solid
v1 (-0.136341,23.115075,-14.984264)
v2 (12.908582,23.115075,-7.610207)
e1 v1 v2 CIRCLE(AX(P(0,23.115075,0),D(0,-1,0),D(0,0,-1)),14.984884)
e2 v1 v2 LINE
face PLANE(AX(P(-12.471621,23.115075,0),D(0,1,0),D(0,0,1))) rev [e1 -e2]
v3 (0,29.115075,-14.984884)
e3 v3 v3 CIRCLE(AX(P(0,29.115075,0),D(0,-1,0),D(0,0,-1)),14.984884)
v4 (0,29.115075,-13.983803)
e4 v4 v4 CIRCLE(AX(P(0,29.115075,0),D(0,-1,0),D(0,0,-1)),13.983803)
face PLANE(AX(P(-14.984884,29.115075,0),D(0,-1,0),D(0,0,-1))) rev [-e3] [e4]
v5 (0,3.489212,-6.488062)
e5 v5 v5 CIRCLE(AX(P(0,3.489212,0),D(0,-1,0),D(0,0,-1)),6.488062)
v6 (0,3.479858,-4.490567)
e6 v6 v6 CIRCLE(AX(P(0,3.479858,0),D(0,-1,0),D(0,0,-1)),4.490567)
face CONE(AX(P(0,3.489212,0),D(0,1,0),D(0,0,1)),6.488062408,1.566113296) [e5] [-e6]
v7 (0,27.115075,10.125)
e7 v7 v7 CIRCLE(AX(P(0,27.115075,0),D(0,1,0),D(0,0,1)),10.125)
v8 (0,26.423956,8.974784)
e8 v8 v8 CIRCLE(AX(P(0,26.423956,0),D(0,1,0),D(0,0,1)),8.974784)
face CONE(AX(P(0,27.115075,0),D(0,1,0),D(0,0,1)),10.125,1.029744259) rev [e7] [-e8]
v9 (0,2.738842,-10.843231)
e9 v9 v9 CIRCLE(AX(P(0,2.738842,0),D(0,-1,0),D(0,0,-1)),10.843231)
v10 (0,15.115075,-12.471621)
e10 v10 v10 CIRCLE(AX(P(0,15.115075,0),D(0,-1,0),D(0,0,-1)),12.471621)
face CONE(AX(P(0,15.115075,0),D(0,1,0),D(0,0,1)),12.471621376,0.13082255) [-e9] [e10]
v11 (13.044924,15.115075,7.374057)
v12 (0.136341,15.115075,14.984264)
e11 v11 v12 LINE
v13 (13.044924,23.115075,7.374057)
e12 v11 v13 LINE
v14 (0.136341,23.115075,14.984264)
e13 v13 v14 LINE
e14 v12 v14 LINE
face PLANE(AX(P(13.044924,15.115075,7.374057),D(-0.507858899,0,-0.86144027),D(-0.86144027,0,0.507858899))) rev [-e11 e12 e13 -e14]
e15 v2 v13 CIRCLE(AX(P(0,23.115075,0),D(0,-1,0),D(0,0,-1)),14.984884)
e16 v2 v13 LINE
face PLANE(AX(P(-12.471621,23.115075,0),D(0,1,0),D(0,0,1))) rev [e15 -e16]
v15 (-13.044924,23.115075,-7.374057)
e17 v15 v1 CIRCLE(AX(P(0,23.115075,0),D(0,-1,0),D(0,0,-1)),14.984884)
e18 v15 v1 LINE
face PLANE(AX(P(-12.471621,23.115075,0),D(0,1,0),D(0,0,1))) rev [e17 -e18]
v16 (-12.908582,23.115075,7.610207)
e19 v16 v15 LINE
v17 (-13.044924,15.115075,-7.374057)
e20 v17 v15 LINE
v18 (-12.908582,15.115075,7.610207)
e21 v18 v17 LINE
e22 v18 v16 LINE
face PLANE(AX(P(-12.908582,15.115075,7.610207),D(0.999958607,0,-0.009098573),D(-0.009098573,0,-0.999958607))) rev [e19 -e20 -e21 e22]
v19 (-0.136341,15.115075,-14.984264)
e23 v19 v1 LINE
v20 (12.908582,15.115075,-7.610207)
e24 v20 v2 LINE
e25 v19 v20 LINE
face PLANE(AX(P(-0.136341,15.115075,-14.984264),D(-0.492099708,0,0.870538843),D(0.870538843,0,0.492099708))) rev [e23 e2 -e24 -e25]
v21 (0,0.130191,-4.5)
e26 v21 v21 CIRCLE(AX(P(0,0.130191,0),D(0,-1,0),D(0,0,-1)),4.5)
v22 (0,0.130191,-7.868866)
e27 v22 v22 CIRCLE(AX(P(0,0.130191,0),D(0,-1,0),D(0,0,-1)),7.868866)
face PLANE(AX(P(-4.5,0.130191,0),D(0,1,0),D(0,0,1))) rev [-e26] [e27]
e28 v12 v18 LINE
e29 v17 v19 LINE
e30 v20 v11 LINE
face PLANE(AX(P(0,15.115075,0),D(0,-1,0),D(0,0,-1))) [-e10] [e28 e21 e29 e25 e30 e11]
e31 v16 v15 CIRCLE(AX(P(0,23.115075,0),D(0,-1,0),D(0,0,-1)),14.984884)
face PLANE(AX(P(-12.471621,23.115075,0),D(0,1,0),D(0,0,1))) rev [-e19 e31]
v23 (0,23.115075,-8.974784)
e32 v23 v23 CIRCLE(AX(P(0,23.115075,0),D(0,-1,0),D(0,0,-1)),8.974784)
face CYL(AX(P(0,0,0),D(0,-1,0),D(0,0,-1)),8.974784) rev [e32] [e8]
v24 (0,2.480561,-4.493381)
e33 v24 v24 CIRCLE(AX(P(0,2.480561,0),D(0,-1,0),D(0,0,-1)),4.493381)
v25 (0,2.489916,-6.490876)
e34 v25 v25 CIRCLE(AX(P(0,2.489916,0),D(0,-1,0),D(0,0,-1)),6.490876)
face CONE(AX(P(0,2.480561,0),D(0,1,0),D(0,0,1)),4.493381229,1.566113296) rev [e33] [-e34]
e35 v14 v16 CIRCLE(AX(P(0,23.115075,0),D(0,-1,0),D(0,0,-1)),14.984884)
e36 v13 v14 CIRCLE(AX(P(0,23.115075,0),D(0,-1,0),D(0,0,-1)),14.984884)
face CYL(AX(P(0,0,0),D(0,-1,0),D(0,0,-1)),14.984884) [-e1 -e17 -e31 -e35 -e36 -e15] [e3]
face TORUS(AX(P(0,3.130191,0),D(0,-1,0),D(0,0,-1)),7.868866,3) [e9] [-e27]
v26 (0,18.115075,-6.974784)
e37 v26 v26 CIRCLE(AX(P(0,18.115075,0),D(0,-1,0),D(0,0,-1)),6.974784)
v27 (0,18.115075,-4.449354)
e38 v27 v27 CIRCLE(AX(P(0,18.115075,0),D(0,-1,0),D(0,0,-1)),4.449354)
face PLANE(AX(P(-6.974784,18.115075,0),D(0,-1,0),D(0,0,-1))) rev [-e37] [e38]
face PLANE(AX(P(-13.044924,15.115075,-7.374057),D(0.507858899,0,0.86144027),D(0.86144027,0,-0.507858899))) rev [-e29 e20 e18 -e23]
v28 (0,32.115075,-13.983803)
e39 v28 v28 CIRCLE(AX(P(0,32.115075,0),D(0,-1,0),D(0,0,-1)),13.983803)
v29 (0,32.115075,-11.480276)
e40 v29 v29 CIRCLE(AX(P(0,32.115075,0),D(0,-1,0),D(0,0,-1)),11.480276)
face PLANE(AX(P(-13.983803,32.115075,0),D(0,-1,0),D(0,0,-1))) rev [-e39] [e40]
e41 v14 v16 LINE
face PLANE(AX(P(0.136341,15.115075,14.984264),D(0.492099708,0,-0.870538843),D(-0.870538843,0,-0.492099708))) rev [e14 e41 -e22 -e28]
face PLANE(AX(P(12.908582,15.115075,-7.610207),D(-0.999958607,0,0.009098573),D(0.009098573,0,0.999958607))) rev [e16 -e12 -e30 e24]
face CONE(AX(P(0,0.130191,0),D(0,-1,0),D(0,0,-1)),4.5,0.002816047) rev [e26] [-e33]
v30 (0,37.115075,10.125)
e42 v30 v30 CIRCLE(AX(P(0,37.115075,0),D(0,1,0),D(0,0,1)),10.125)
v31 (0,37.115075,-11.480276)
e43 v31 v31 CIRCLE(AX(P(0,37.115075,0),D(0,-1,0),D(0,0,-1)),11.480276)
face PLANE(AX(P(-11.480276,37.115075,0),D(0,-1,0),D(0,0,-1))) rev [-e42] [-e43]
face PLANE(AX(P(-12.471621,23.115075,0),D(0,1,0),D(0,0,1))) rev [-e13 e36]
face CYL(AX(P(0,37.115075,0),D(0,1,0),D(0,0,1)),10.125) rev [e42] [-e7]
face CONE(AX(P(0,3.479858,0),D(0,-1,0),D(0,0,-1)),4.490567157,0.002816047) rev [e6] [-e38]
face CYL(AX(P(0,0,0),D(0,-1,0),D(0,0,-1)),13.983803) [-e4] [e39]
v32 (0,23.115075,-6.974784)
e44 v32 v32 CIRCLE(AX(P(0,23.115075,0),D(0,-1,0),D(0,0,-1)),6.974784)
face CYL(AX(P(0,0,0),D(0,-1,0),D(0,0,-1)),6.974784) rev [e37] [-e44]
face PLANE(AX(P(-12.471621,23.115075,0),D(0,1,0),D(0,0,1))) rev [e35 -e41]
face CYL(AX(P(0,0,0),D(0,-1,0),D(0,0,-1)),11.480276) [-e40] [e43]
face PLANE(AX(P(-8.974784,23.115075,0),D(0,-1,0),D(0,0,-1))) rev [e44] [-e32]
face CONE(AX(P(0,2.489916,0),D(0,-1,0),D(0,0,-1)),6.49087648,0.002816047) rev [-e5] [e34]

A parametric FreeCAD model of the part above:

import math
import FreeCAD as App
import Part
import Sketcher
from FreeCAD import Vector

doc = App.newDocument("Part")
body = doc.addObject("PartDesign::Body", "Body")

sketch1 = body.newObject("Sketcher::SketchObject", "Sketch")
sketch1.AttachmentSupport = (doc.getObject("XY_Plane"), [""])
sketch1.MapMode = "FlatFace"
sketch1.addGeometry(Part.LineSegment(Vector(-7.9, 0.1, 0), Vector(-4.5, 0.1, 0)), False)
sketch1.addGeometry(Part.LineSegment(Vector(-4.5, 0.1, 0), Vector(-4.5, 2.5, 0)), False)
sketch1.addGeometry(Part.LineSegment(Vector(-4.5, 2.5, 0), Vector(-6.5, 2.5, 0)), False)
sketch1.addGeometry(Part.LineSegment(Vector(-6.5, 2.5, 0), Vector(-6.5, 3.5, 0)), False)
sketch1.addGeometry(Part.LineSegment(Vector(-6.5, 3.5, 0), Vector(-4.5, 3.5, 0)), False)
sketch1.addGeometry(Part.LineSegment(Vector(-4.5, 3.5, 0), Vector(-4.4, 18.1, 0)), False)
sketch1.addGeometry(Part.LineSegment(Vector(-4.4, 18.1, 0), Vector(-7, 18.1, 0)), False)
sketch1.addGeometry(Part.LineSegment(Vector(-7, 18.1, 0), Vector(-7, 23.1, 0)), False)
sketch1.addGeometry(Part.LineSegment(Vector(-7, 23.1, 0), Vector(-9, 23.1, 0)), False)
sketch1.addGeometry(Part.LineSegment(Vector(-9, 23.1, 0), Vector(-9, 37.1, 0)), False)
sketch1.addGeometry(Part.LineSegment(Vector(-9, 37.1, 0), Vector(-11.5, 37.1, 0)), False)
sketch1.addGeometry(Part.LineSegment(Vector(-11.5, 37.1, 0), Vector(-11.5, 32.1, 0)), False)
sketch1.addGeometry(Part.LineSegment(Vector(-11.5, 32.1, 0), Vector(-14, 32.1, 0)), False)
sketch1.addGeometry(Part.LineSegment(Vector(-14, 32.1, 0), Vector(-14, 29.1, 0)), False)
sketch1.addGeometry(Part.LineSegment(Vector(-14, 29.1, 0), Vector(-15, 29.1, 0)), False)
sketch1.addGeometry(Part.LineSegment(Vector(-15, 29.1, 0), Vector(-15, 23.1, 0)), False)
sketch1.addGeometry(Part.LineSegment(Vector(-15, 23.1, 0), Vector(-12.5, 23.1, 0)), False)
sketch1.addGeometry(Part.LineSegment(Vector(-12.5, 23.1, 0), Vector(-12.5, 15.1, 0)), False)
sketch1.addGeometry(Part.LineSegment(Vector(-12.5, 15.1, 0), Vector(-10.8, 2.7, 0)), False)
sketch1.addGeometry(Part.ArcOfCircle(Part.Circle(Vector(-7.9, 3.1, 0), Vector(0, 0, 1), 3), math.radians(-173), math.radians(-90)), False)
sketch1.addConstraint(Sketcher.Constraint("Coincident", 0, 2, 1, 1))
sketch1.addConstraint(Sketcher.Constraint("Coincident", 1, 2, 2, 1))
sketch1.addConstraint(Sketcher.Constraint("Coincident", 2, 2, 3, 1))
sketch1.addConstraint(Sketcher.Constraint("Coincident", 3, 2, 4, 1))
sketch1.addConstraint(Sketcher.Constraint("Coincident", 4, 2, 5, 1))
sketch1.addConstraint(Sketcher.Constraint("Coincident", 5, 2, 6, 1))
sketch1.addConstraint(Sketcher.Constraint("Coincident", 6, 2, 7, 1))
sketch1.addConstraint(Sketcher.Constraint("Coincident", 7, 2, 8, 1))
sketch1.addConstraint(Sketcher.Constraint("Coincident", 8, 2, 9, 1))
sketch1.addConstraint(Sketcher.Constraint("Coincident", 9, 2, 10, 1))
sketch1.addConstraint(Sketcher.Constraint("Coincident", 10, 2, 11, 1))
sketch1.addConstraint(Sketcher.Constraint("Coincident", 11, 2, 12, 1))
sketch1.addConstraint(Sketcher.Constraint("Coincident", 12, 2, 13, 1))
sketch1.addConstraint(Sketcher.Constraint("Coincident", 13, 2, 14, 1))
sketch1.addConstraint(Sketcher.Constraint("Coincident", 14, 2, 15, 1))
sketch1.addConstraint(Sketcher.Constraint("Coincident", 15, 2, 16, 1))
sketch1.addConstraint(Sketcher.Constraint("Coincident", 16, 2, 17, 1))
sketch1.addConstraint(Sketcher.Constraint("Coincident", 17, 2, 18, 1))
sketch1.addConstraint(Sketcher.Constraint("Tangent", 18, 2, 19, 1))
sketch1.addConstraint(Sketcher.Constraint("Tangent", 19, 2, 0, 1))
sketch1.addConstraint(Sketcher.Constraint("Horizontal", 0))
sketch1.addConstraint(Sketcher.Constraint("Horizontal", 6))
sketch1.addConstraint(Sketcher.Constraint("Vertical", 7))
sketch1.addConstraint(Sketcher.Constraint("Horizontal", 8))
sketch1.addConstraint(Sketcher.Constraint("Vertical", 9))
sketch1.addConstraint(Sketcher.Constraint("Horizontal", 10))
sketch1.addConstraint(Sketcher.Constraint("Vertical", 11))
sketch1.addConstraint(Sketcher.Constraint("Horizontal", 12))
sketch1.addConstraint(Sketcher.Constraint("Vertical", 13))
sketch1.addConstraint(Sketcher.Constraint("Horizontal", 14))
sketch1.addConstraint(Sketcher.Constraint("Vertical", 15))
sketch1.addConstraint(Sketcher.Constraint("Horizontal", 16))
sketch1.addConstraint(Sketcher.Constraint("Vertical", 17))
sketch1.addConstraint(Sketcher.Constraint("Parallel", 1, 3))
sketch1.addConstraint(Sketcher.Constraint("Parallel", 2, 4))
sketch1.addConstraint(Sketcher.Constraint("Parallel", 3, 5))
sketch1.addConstraint(Sketcher.Constraint("Horizontal", 8, 2, 15, 2))
sketch1.addConstraint(Sketcher.Constraint("Equal", 7, 11))
sketch1.addConstraint(Sketcher.Constraint("Equal", 2, 4))
sketch1.addConstraint(Sketcher.Constraint("Radius", 19, 3.0))
sketch1.addConstraint(Sketcher.Constraint("DistanceX", 8, 2, 8, 1, 2.0))
sketch1.addConstraint(Sketcher.Constraint("DistanceY", 7, 1, 7, 2, 5.0))
sketch1.addConstraint(Sketcher.Constraint("DistanceY", 9, 1, 9, 2, 14.0))
sketch1.addConstraint(Sketcher.Constraint("DistanceY", 13, 2, 13, 1, 3.0))
sketch1.addConstraint(Sketcher.Constraint("DistanceY", 17, 2, 17, 1, 8.0))
sketch1.addConstraint(Sketcher.Constraint("DistanceX", 0, 2, -1, 1, 4.5))
sketch1.addConstraint(Sketcher.Constraint("Distance", 3, 0.9993))
sketch1.addConstraint(Sketcher.Constraint("Distance", 18, 12.4829))
sketch1.addConstraint(Sketcher.Constraint("DistanceX", 6, 2, 6, 1, 2.52543))
sketch1.addConstraint(Sketcher.Constraint("DistanceX", 14, 2, 14, 1, 1.001081))
sketch1.addConstraint(Sketcher.Constraint("DistanceX", 19, 3, 4, 2, 3.378299))
sketch1.addConstraint(Sketcher.Constraint("DistanceX", 14, 2, 8, 2, 6.0101))
sketch1.addConstraint(Sketcher.Constraint("Distance", 1, 2.35038))
sketch1.addConstraint(Sketcher.Constraint("DistanceX", 0, 1, 0, 2, 3.368866))
sketch1.addConstraint(Sketcher.Constraint("DistanceX", 10, 2, 10, 1, 2.505492))
sketch1.addConstraint(Sketcher.Constraint("DistanceX", 16, 1, 16, 2, 2.513263))
sketch1.addConstraint(Sketcher.Constraint("DistanceY", -1, 1, 19, 3, 3.130191))
sketch1.addConstraint(Sketcher.Constraint("DistanceY", -1, 1, 3, 2, 3.489212))
sketch1.addConstraint(Sketcher.Constraint("DistanceX", 19, 3, 2, 2, 1.377989))
revolution = body.newObject("PartDesign::Revolution", "Revolution")
revolution.Profile = sketch1
revolution.ReferenceAxis = (sketch1, ["V_Axis"])
revolution.Angle = 360

sketch2 = body.newObject("Sketcher::SketchObject", "Sketch001")
sketch2.AttachmentSupport = (doc.getObject("XZ_Plane"), [""])
sketch2.MapMode = "FlatFace"
sketch2.AttachmentOffset = App.Placement(Vector(0, 0, -23.115075), App.Rotation())
sketch2.addGeometry(Part.LineSegment(Vector(13, 7, 0), Vector(0, 15, 0)), False)
sketch2.addGeometry(Part.LineSegment(Vector(0, 15, 0), Vector(-13, 8, 0)), False)
sketch2.addGeometry(Part.LineSegment(Vector(-13, 8, 0), Vector(-13, -7, 0)), False)
sketch2.addGeometry(Part.LineSegment(Vector(-13, -7, 0), Vector(0, -15, 0)), False)
sketch2.addGeometry(Part.LineSegment(Vector(0, -15, 0), Vector(13, -8, 0)), False)
sketch2.addGeometry(Part.LineSegment(Vector(13, -8, 0), Vector(13, 7, 0)), False)
sketch2.addGeometry(Part.Circle(Vector(0, 0, 0), Vector(0, 0, 1), 12), False)
sketch2.addConstraint(Sketcher.Constraint("Coincident", 0, 2, 1, 1))
sketch2.addConstraint(Sketcher.Constraint("Coincident", 1, 2, 2, 1))
sketch2.addConstraint(Sketcher.Constraint("Coincident", 2, 2, 3, 1))
sketch2.addConstraint(Sketcher.Constraint("Coincident", 3, 2, 4, 1))
sketch2.addConstraint(Sketcher.Constraint("Coincident", 4, 2, 5, 1))
sketch2.addConstraint(Sketcher.Constraint("Coincident", 5, 2, 0, 1))
sketch2.addConstraint(Sketcher.Constraint("Coincident", 6, 3, -1, 1))
sketch2.addConstraint(Sketcher.Constraint("Symmetric", 0, 2, 3, 2, -1, 1))
sketch2.addConstraint(Sketcher.Constraint("Symmetric", 1, 2, 4, 2, -1, 1))
sketch2.addConstraint(Sketcher.Constraint("Symmetric", 2, 2, 5, 2, -1, 1))
sketch2.addConstraint(Sketcher.Constraint("Equal", 0, 1))
sketch2.addConstraint(Sketcher.Constraint("Equal", 1, 2))
sketch2.addConstraint(Sketcher.Constraint("Diameter", 6, 24.943243))
sketch2.addConstraint(Sketcher.Constraint("DistanceX", -1, 1, 0, 2, 0.136341))
sketch2.addConstraint(Sketcher.Constraint("DistanceX", 2, 2, 1, 2, 0.136341))
sketch2.addConstraint(Sketcher.Constraint("DistanceY", 2, 2, 0, 2, 22.358321))
sketch2.addConstraint(Sketcher.Constraint("DistanceX", 1, 2, 3, 2, 12.772241))
pad1 = body.newObject("PartDesign::Pad", "Pad")
pad1.Profile = sketch2
pad1.Length = 8

sketch3 = body.newObject("Sketcher::SketchObject", "Sketch002")
sketch3.AttachmentSupport = (doc.getObject("XZ_Plane"), [""])
sketch3.MapMode = "FlatFace"
sketch3.AttachmentOffset = App.Placement(Vector(0, 0, -37.115075), App.Rotation())
sketch3.addGeometry(Part.Circle(Vector(0, 0, 0), Vector(0, 0, 1), 9), False)
sketch3.addConstraint(Sketcher.Constraint("Coincident", 0, 3, -1, 1))
sketch3.addConstraint(Sketcher.Constraint("Diameter", 0, 17.949568))
pad2 = body.newObject("PartDesign::Pad", "Pad001")
pad2.Profile = sketch3
pad2.Length = 8

sketch4 = body.newObject("Sketcher::SketchObject", "Sketch003")
sketch4.AttachmentSupport = (doc.getObject("XZ_Plane"), [""])
sketch4.MapMode = "FlatFace"
sketch4.AttachmentOffset = App.Placement(Vector(0, 0, -37.115075), App.Rotation())
sketch4.addGeometry(Part.Circle(Vector(0, 0, 0), Vector(0, 0, 1), 10), False)
sketch4.addConstraint(Sketcher.Constraint("Coincident", 0, 3, -1, 1))
sketch4.addConstraint(Sketcher.Constraint("Diameter", 0, 20.25))
doc.recompute()
hole = body.newObject("PartDesign::Hole", "Hole")
hole.Profile = sketch4
hole.ThreadType = "None"
hole.Diameter = 20.25
hole.DepthType = "Dimension"
hole.Depth = 10
hole.DrillPoint = "Angled"
hole.DrillPointAngle = 118
hole.Reversed = True

doc.recompute()
